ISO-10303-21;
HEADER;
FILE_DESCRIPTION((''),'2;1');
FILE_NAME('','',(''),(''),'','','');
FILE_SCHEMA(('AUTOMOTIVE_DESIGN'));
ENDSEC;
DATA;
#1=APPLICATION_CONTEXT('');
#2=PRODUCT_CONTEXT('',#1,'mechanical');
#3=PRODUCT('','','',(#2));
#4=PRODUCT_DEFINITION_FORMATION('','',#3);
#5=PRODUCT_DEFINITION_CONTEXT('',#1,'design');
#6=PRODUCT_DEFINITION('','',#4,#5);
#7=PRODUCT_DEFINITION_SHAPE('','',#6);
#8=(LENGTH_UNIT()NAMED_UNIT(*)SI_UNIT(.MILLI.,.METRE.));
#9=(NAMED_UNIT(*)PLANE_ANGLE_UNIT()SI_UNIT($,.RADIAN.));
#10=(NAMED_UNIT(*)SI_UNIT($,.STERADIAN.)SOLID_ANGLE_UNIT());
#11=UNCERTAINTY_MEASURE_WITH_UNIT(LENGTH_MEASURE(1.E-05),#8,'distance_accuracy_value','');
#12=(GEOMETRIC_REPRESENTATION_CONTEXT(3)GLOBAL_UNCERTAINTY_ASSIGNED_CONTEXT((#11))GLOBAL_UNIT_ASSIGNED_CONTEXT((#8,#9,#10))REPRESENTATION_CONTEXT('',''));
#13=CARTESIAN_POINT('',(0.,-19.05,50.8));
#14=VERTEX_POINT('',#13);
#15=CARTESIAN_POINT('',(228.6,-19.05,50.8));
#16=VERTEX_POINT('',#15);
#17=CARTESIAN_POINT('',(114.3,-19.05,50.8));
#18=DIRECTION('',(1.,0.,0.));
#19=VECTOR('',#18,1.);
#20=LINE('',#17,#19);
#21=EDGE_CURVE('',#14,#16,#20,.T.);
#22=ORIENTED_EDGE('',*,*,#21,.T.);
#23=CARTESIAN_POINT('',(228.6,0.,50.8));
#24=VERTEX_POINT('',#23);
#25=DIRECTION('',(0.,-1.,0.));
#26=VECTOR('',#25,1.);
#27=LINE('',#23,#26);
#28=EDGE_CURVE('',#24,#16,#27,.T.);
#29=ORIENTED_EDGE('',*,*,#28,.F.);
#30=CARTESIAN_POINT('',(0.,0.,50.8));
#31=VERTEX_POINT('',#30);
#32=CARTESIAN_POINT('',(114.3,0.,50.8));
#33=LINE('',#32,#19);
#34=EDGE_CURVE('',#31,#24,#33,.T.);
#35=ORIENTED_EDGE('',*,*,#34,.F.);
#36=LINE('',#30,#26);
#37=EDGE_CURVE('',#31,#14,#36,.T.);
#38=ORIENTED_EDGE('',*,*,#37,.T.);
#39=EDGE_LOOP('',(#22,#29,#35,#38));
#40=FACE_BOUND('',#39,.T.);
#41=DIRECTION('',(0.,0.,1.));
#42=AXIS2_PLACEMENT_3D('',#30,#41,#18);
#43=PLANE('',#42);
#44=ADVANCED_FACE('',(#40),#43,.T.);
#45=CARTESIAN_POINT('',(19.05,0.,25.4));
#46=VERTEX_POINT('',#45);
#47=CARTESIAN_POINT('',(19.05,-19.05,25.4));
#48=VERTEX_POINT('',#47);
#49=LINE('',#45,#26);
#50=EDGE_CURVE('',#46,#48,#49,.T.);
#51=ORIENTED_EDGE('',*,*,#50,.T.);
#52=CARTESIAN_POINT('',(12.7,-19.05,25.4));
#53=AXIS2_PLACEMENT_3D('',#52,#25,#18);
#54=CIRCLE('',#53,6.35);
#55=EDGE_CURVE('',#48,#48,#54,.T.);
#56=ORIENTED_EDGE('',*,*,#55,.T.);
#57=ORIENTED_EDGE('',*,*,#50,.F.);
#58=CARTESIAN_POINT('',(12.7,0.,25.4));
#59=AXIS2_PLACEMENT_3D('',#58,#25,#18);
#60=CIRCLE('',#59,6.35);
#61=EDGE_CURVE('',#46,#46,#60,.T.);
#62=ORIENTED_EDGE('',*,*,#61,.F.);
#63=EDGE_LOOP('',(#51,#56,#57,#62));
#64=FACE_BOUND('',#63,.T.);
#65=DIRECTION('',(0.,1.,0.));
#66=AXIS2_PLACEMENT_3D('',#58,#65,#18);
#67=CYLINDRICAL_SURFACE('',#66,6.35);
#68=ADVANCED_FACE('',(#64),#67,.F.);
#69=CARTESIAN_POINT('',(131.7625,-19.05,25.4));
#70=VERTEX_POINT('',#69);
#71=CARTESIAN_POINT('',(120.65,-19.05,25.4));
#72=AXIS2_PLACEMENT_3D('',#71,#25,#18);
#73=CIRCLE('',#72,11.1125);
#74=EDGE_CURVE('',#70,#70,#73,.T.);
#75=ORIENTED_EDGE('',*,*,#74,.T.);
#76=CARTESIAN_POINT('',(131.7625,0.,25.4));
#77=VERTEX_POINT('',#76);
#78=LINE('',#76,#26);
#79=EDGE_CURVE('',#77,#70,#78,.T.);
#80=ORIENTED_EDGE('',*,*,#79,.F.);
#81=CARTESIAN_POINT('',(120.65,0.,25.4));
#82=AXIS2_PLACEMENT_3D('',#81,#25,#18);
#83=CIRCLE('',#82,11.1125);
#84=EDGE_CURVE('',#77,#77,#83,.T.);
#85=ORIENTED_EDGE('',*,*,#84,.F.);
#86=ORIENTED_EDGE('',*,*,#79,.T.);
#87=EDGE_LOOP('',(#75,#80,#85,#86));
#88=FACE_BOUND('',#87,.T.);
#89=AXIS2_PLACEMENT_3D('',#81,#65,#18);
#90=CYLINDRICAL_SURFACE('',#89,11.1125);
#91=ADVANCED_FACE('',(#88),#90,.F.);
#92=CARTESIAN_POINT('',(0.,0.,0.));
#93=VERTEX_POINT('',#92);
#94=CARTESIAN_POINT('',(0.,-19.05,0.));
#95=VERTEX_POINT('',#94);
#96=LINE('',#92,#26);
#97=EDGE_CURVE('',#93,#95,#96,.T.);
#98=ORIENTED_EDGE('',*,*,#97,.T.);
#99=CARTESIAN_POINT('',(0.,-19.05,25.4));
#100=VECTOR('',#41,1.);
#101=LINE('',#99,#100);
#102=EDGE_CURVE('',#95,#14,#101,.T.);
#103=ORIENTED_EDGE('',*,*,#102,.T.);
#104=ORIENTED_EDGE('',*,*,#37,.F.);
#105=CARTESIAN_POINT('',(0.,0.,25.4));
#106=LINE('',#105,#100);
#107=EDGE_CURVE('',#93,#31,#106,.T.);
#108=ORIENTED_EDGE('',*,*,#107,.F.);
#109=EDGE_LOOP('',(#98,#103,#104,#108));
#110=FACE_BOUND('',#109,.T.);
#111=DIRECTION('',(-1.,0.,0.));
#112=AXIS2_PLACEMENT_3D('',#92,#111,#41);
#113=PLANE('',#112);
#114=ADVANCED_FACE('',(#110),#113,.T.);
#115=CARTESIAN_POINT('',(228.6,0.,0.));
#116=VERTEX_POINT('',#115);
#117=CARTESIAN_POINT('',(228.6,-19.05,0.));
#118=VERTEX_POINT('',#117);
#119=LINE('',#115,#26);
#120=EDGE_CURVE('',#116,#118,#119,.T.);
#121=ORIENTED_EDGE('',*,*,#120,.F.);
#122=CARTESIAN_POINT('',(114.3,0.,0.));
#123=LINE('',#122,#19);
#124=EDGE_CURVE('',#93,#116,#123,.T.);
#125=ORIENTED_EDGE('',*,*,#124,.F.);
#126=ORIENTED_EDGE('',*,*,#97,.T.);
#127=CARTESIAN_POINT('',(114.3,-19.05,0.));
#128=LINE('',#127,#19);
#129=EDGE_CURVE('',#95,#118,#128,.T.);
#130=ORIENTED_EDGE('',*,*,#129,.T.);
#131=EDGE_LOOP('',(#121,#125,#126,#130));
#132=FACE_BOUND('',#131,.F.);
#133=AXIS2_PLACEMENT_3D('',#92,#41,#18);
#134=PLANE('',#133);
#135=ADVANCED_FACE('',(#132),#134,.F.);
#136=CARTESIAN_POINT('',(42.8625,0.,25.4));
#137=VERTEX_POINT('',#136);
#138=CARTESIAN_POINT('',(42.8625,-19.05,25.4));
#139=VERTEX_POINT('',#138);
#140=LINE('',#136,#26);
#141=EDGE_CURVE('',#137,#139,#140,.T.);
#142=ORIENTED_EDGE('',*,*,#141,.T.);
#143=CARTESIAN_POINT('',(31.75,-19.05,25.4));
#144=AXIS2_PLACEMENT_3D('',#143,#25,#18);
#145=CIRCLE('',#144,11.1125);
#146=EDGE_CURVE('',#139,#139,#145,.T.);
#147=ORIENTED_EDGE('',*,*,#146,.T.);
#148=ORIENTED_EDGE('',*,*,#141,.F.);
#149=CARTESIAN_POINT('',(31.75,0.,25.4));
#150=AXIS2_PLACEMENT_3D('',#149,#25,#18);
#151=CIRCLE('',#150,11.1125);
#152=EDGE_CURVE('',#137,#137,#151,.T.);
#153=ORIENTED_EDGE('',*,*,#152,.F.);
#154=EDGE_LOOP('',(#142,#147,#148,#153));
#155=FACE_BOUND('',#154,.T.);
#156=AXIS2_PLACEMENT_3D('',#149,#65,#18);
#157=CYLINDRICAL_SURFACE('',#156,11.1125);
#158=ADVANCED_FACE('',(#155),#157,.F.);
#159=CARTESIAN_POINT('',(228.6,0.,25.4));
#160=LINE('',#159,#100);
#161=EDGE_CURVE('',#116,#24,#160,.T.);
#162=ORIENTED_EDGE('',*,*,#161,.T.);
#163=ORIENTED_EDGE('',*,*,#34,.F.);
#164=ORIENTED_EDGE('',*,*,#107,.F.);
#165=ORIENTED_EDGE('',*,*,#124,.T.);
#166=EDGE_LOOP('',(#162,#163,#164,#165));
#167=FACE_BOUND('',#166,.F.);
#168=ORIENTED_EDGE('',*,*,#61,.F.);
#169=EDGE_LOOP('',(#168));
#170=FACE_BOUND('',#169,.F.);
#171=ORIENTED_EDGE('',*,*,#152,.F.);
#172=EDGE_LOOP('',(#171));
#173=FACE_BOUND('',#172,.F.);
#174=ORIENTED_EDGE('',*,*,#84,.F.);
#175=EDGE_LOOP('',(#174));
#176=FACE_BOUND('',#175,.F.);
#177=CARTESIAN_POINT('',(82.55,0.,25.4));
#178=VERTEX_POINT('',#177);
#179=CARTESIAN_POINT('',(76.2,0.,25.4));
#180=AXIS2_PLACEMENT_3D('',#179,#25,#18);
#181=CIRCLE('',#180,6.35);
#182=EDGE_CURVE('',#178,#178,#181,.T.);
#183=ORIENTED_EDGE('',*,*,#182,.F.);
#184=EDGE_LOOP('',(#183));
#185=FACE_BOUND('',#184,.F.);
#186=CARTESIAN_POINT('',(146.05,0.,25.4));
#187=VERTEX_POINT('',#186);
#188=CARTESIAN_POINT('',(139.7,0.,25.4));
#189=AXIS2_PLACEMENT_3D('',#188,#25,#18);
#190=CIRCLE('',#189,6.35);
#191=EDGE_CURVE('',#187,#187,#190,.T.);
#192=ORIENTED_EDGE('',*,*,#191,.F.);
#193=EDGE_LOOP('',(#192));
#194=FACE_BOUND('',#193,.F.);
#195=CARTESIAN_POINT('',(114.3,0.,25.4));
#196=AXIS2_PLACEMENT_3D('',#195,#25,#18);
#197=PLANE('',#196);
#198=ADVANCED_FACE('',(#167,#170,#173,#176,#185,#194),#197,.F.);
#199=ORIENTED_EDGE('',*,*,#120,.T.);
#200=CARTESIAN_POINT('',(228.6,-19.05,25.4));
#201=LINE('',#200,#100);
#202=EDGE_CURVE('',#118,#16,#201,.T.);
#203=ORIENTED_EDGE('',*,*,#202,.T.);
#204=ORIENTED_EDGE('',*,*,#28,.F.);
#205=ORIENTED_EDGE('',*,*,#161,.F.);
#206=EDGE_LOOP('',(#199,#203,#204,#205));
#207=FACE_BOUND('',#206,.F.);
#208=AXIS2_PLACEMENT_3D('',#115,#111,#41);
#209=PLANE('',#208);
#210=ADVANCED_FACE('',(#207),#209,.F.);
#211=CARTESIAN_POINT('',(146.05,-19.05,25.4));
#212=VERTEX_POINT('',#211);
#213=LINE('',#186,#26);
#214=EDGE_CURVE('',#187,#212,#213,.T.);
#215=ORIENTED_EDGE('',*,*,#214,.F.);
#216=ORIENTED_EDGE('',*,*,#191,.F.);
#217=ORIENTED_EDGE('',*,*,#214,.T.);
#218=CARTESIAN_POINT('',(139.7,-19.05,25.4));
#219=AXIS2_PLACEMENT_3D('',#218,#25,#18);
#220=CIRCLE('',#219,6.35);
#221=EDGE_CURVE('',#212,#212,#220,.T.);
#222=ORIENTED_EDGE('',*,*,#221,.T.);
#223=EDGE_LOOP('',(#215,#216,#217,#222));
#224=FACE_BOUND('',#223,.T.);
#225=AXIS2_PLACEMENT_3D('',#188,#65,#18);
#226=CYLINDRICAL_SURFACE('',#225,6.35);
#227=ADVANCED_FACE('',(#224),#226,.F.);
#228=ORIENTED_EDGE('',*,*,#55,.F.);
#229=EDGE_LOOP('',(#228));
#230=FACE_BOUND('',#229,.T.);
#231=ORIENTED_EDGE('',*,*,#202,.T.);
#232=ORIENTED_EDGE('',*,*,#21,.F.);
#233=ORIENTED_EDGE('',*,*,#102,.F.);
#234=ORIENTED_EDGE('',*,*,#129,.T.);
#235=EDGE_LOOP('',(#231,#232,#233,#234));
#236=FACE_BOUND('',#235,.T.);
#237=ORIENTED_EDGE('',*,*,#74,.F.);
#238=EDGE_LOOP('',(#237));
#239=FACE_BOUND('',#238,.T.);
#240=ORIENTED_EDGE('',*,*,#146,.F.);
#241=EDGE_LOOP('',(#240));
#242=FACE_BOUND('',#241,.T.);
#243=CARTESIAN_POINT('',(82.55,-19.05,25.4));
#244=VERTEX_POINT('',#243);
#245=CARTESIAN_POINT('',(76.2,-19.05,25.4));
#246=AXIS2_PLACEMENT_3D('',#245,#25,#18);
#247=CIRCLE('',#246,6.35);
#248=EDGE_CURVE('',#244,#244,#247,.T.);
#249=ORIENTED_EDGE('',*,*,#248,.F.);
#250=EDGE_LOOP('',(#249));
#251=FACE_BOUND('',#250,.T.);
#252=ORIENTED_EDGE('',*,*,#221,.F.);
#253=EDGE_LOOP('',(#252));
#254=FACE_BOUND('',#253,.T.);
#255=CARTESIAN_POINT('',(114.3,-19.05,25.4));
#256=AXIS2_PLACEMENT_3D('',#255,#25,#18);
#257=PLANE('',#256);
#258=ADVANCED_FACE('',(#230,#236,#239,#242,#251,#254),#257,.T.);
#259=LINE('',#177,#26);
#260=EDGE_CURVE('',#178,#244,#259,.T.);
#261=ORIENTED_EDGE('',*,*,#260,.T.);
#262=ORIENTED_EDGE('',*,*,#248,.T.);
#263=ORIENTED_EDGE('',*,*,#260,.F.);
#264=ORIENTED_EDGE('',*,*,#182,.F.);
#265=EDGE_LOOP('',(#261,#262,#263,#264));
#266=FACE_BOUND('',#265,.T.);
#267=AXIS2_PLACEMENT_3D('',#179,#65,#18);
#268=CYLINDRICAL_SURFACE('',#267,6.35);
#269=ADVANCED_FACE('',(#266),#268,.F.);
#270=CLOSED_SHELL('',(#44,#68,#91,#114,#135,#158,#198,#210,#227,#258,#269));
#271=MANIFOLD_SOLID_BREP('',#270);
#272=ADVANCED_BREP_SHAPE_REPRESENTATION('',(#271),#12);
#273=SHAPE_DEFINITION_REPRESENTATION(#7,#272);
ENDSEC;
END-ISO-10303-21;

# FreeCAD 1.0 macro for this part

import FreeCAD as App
import Part
import Sketcher
Q = App.Units.Quantity


def add_polygon(sketch, points):
    """Adds a closed chain of lines whose ends are joined by coincident constraints."""
    first, n = sketch.GeometryCount, len(points)
    for a, b in zip(points, points[1:] + points[:1]):
        sketch.addGeometry(Part.LineSegment(App.Vector(*a, 0), App.Vector(*b, 0)), False)
    for i in range(n):
        sketch.addConstraint(Sketcher.Constraint("Coincident", first + i, 2, first + (i + 1) % n, 1))

doc = App.newDocument("Part")
params = doc.addObject("Spreadsheet::Sheet", "Params")
for row, (alias, value) in enumerate([
    ("sketch1_diameter", "0.5 in"),
    ("sketch1_width", "9 in"),
    ("sketch1_height", "2 in"),
    ("sketch1_diameter2", "0.875 in"),
    ("pad1_length", "0.75 in"),
], start=1):
    params.set(f"A{row}", alias)
    params.set(f"B{row}", "=" + value)
    params.setAlias(f"B{row}", alias)

body = doc.addObject("PartDesign::Body", "Body")

# Sketch on XZ plane
sketch1 = doc.addObject("Sketcher::SketchObject", "Sketch")
body.addObject(sketch1)
sketch1.AttachmentSupport = (doc.XZ_Plane, [""])
sketch1.MapMode = "FlatFace"
add_polygon(sketch1, [(0, 51), (0, 0), (229, 0), (229, 51)])  # lines 0-3
sketch1.addGeometry(Part.Circle(App.Vector(13, 25, 0), App.Vector(0, 0, 1), 6), False)  # 4
sketch1.addGeometry(Part.Circle(App.Vector(32, 25, 0), App.Vector(0, 0, 1), 11), False)  # 5
sketch1.addGeometry(Part.Circle(App.Vector(76, 25, 0), App.Vector(0, 0, 1), 6), False)  # 6
sketch1.addGeometry(Part.Circle(App.Vector(121, 25, 0), App.Vector(0, 0, 1), 11), False)  # 7
sketch1.addGeometry(Part.Circle(App.Vector(140, 25, 0), App.Vector(0, 0, 1), 6), False)  # 8
sketch1.addConstraint(Sketcher.Constraint("Vertical", 0))
sketch1.addConstraint(Sketcher.Constraint("Horizontal", 1))
sketch1.addConstraint(Sketcher.Constraint("Vertical", 2))
sketch1.addConstraint(Sketcher.Constraint("Horizontal", 3))
sketch1.addConstraint(Sketcher.Constraint("Coincident", 0, 2, -1, 1))
sketch1.addConstraint(Sketcher.Constraint("Equal", 4, 6))
sketch1.addConstraint(Sketcher.Constraint("Equal", 5, 7))
sketch1.addConstraint(Sketcher.Constraint("Equal", 6, 8))
sketch1.addConstraint(Sketcher.Constraint("Horizontal", 4, 3, 5, 3))
sketch1.addConstraint(Sketcher.Constraint("Horizontal", 5, 3, 6, 3))
sketch1.addConstraint(Sketcher.Constraint("Horizontal", 6, 3, 7, 3))
sketch1.addConstraint(Sketcher.Constraint("Horizontal", 7, 3, 8, 3))
sketch1.addConstraint(Sketcher.Constraint("Diameter", 4, Q("0.5 in")))
sketch1.addConstraint(Sketcher.Constraint("DistanceX", 1, 1, 1, 2, Q("9 in")))
sketch1.addConstraint(Sketcher.Constraint("DistanceY", 0, 2, 0, 1, Q("2 in")))
sketch1.addConstraint(Sketcher.Constraint("Diameter", 5, Q("0.875 in")))
sketch1.addConstraint(Sketcher.Constraint("DistanceY", -1, 1, 4, 3, Q("1 in")))
sketch1.addConstraint(Sketcher.Constraint("DistanceX", -1, 1, 6, 3, Q("3 in")))
sketch1.addConstraint(Sketcher.Constraint("DistanceX", 4, 3, 8, 3, Q("5 in")))
sketch1.addConstraint(Sketcher.Constraint("DistanceX", -1, 1, 4, 3, Q("0.5 in")))
sketch1.addConstraint(Sketcher.Constraint("DistanceX", 5, 3, 7, 3, Q("3.5 in")))
sketch1.addConstraint(Sketcher.Constraint("DistanceX", -1, 1, 5, 3, Q("1.25 in")))
sketch1.setExpression("Constraints[16]", "Params.sketch1_diameter")
sketch1.setExpression("Constraints[17]", "Params.sketch1_width")
sketch1.setExpression("Constraints[18]", "Params.sketch1_height")
sketch1.setExpression("Constraints[19]", "Params.sketch1_diameter2")
pad1 = doc.addObject("PartDesign::Pad", "Pad")
body.addObject(pad1)
pad1.Profile = sketch1
pad1.setExpression("Length", "Params.pad1_length")

doc.recompute()
